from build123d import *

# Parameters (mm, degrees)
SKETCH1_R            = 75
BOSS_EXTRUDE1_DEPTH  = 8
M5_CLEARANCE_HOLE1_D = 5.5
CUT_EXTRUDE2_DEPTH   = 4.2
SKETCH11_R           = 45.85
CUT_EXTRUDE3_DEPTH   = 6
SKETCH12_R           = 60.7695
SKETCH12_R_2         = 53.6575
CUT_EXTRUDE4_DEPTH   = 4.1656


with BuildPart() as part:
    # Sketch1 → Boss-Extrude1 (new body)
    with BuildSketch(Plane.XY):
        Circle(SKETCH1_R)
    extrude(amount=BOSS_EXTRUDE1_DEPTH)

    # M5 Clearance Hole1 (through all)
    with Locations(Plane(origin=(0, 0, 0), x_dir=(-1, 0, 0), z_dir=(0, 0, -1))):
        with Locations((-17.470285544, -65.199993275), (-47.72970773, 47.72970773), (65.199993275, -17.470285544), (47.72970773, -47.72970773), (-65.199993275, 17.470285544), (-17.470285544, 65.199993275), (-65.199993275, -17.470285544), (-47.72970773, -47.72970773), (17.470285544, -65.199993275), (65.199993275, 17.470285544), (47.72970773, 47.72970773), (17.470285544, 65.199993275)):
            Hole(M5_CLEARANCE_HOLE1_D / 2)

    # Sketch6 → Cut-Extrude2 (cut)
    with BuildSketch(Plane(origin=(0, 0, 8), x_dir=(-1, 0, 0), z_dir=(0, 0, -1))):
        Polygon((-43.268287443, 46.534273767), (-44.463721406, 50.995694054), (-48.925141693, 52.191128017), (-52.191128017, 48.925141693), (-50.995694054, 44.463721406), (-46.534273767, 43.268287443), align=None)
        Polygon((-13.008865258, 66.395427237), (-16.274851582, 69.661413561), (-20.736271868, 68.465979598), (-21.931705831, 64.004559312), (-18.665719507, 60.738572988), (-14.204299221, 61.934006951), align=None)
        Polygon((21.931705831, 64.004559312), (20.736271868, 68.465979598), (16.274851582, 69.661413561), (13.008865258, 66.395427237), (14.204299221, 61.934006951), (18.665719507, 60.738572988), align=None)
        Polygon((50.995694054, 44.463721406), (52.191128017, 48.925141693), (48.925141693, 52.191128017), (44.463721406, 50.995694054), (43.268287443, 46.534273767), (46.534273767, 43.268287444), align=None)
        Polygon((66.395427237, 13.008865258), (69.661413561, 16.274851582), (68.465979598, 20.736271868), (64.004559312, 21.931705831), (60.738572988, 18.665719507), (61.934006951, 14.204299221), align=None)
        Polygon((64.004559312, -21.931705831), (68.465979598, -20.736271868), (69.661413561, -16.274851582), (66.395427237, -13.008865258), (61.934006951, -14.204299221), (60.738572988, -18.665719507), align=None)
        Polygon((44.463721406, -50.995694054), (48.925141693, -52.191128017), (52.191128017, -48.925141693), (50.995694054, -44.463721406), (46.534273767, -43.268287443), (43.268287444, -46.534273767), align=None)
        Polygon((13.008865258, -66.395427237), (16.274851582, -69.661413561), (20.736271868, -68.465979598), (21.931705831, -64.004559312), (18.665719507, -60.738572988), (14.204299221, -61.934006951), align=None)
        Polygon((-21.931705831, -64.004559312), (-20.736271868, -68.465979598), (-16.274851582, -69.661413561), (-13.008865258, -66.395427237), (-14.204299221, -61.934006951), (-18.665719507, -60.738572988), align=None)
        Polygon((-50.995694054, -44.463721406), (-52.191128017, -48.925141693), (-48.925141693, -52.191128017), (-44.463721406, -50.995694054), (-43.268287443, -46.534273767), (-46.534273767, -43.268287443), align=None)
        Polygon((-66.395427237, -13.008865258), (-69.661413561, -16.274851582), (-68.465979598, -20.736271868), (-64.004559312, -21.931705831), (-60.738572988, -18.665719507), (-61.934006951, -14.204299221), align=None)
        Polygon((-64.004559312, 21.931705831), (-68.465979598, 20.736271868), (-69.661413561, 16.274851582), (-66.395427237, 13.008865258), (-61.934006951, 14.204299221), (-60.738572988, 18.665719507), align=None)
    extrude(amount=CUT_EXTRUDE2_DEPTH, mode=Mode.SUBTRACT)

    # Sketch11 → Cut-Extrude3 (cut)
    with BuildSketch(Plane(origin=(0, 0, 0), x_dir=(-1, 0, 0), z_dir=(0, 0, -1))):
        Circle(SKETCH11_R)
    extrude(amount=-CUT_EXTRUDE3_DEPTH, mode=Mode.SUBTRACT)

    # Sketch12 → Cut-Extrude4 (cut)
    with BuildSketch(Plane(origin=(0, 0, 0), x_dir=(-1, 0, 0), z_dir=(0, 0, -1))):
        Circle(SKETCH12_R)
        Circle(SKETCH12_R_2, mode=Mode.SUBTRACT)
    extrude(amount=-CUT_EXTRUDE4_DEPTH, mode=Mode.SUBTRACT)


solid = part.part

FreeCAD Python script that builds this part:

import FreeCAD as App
import Part
import Sketcher

V = App.Vector
Q = App.Units.Quantity


def add_polygon(sketch, points):
    """Adds a closed chain of lines whose ends are joined by coincident constraints."""
    first, n = sketch.GeometryCount, len(points)
    for a, b in zip(points, points[1:] + points[:1]):
        sketch.addGeometry(Part.LineSegment(App.Vector(*a, 0), App.Vector(*b, 0)), False)
    for i in range(n):
        sketch.addConstraint(Sketcher.Constraint("Coincident", first + i, 2, first + (i + 1) % n, 1))

doc = App.newDocument("Part")
body = doc.addObject("PartDesign::Body", "Body")

sketch1 = body.newObject("Sketcher::SketchObject", "Sketch")
sketch1.AttachmentSupport = (doc.getObject("XY_Plane"), [""])
sketch1.MapMode = "FlatFace"
sketch1.addGeometry(Part.Circle(V(0, 0, 0), V(0, 0, 1), 75), False)
sketch1.addConstraint([
    Sketcher.Constraint("Coincident", 0, 3, -1, 1),
    Sketcher.Constraint("Diameter", 0, 150.0),
])
pad1 = body.newObject("PartDesign::Pad", "Pad")
pad1.Profile = sketch1
pad1.Length = 8

sketch2 = body.newObject("Sketcher::SketchObject", "Sketch001")
sketch2.AttachmentSupport = (doc.getObject("XY_Plane"), [""])
sketch2.MapMode = "FlatFace"
sketch2.addGeometry([
    Part.Circle(V(17.5, -65.2, 0), V(0, 0, 1), 2.8),
    Part.Circle(V(47.7, 47.7, 0), V(0, 0, 1), 2.8),
    Part.Circle(V(-65.2, -17.5, 0), V(0, 0, 1), 2.8),
    Part.Circle(V(-47.7, -47.7, 0), V(0, 0, 1), 2.8),
    Part.Circle(V(65.2, 17.5, 0), V(0, 0, 1), 2.8),
    Part.Circle(V(17.5, 65.2, 0), V(0, 0, 1), 2.8),
    Part.Circle(V(65.2, -17.5, 0), V(0, 0, 1), 2.8),
    Part.Circle(V(47.7, -47.7, 0), V(0, 0, 1), 2.8),
    Part.Circle(V(-17.5, -65.2, 0), V(0, 0, 1), 2.8),
    Part.Circle(V(-65.2, 17.5, 0), V(0, 0, 1), 2.8),
    Part.Circle(V(-47.7, 47.7, 0), V(0, 0, 1), 2.8),
    Part.Circle(V(-17.5, 65.2, 0), V(0, 0, 1), 2.8),
], False)
sketch2.addConstraint([
    Sketcher.Constraint("Equal", 0, 1),
    Sketcher.Constraint("Equal", 1, 2),
    Sketcher.Constraint("Equal", 2, 3),
    Sketcher.Constraint("Equal", 3, 4),
    Sketcher.Constraint("Equal", 4, 5),
    Sketcher.Constraint("Equal", 5, 6),
    Sketcher.Constraint("Equal", 6, 7),
    Sketcher.Constraint("Equal", 7, 8),
    Sketcher.Constraint("Equal", 8, 9),
    Sketcher.Constraint("Equal", 9, 10),
    Sketcher.Constraint("Equal", 10, 11),
    Sketcher.Constraint("Symmetric", 1, 3, 3, 3, -1, 1),
    Sketcher.Constraint("Symmetric", 2, 3, 4, 3, -1, 1),
    Sketcher.Constraint("Symmetric", 5, 3, 8, 3, -1, 1),
    Sketcher.Constraint("Symmetric", 6, 3, 9, 3, -1, 1),
    Sketcher.Constraint("Symmetric", 7, 3, 10, 3, -1, 1),
    Sketcher.Constraint("Symmetric", 0, 3, 11, 3, -1, 1),
    Sketcher.Constraint("Symmetric", 2, 3, 6, 3, -2),
    Sketcher.Constraint("Symmetric", 3, 3, 7, 3, -2),
    Sketcher.Constraint("Symmetric", 0, 3, 8, 3, -2),
    Sketcher.Constraint("Diameter", 0, 5.5),
    Sketcher.Constraint("DistanceY", 0, 3, 1, 3, 112.929701),
    Sketcher.Constraint("DistanceX", 2, 3, 1, 3, 112.929701),
    Sketcher.Constraint("DistanceX", 2, 3, 0, 3, 82.670279),
    Sketcher.Constraint("DistanceY", 0, 3, 4, 3, 82.670279),
    Sketcher.Constraint("DistanceY", 2, 3, 4, 3, 34.940571),
    Sketcher.Constraint("DistanceX", 8, 3, 0, 3, 34.940571),
])
doc.recompute()
hole = body.newObject("PartDesign::Hole", "Hole")
hole.Profile = sketch2
hole.ThreadType = "None"
hole.Diameter = 5.5
hole.DepthType = "ThroughAll"
hole.Reversed = True

sketch3 = body.newObject("Sketcher::SketchObject", "Sketch002")
sketch3.AttachmentSupport = (doc.getObject("XY_Plane"), [""])
sketch3.MapMode = "FlatFace"
sketch3.AttachmentOffset = App.Placement(V(0, 0, 8), App.Rotation())
add_polygon(sketch3, [(43.3, 46.5), (44.5, 51), (48.9, 52.2), (52.2, 48.9), (51, 44.5), (46.5, 43.3)])
add_polygon(sketch3, [(13, 66.4), (16.3, 69.7), (20.7, 68.5), (21.9, 64), (18.7, 60.7), (14.2, 61.9)])
add_polygon(sketch3, [(-21.9, 64), (-20.7, 68.5), (-16.3, 69.7), (-13, 66.4), (-14.2, 61.9), (-18.7, 60.7)])
add_polygon(sketch3, [(-51, 44.5), (-52.2, 48.9), (-48.9, 52.2), (-44.5, 51), (-43.3, 46.5), (-46.5, 43.3)])
add_polygon(sketch3, [(-66.4, 13), (-69.7, 16.3), (-68.5, 20.7), (-64, 21.9), (-60.7, 18.7), (-61.9, 14.2)])
add_polygon(sketch3, [(-64, -21.9), (-68.5, -20.7), (-69.7, -16.3), (-66.4, -13), (-61.9, -14.2), (-60.7, -18.7)])
add_polygon(sketch3, [(-44.5, -51), (-48.9, -52.2), (-52.2, -48.9), (-51, -44.5), (-46.5, -43.3), (-43.3, -46.5)])
add_polygon(sketch3, [(-13, -66.4), (-16.3, -69.7), (-20.7, -68.5), (-21.9, -64), (-18.7, -60.7), (-14.2, -61.9)])
add_polygon(sketch3, [(21.9, -64), (20.7, -68.5), (16.3, -69.7), (13, -66.4), (14.2, -61.9), (18.7, -60.7)])
add_polygon(sketch3, [(51, -44.5), (52.2, -48.9), (48.9, -52.2), (44.5, -51), (43.3, -46.5), (46.5, -43.3)])
add_polygon(sketch3, [(66.4, -13), (69.7, -16.3), (68.5, -20.7), (64, -21.9), (60.7, -18.7), (61.9, -14.2)])
add_polygon(sketch3, [(64, 21.9), (68.5, 20.7), (69.7, 16.3), (66.4, 13), (61.9, 14.2), (60.7, 18.7)])
sketch3.addConstraint([
    Sketcher.Constraint("Symmetric", 1, 2, 36, 2, -1, 1),
    Sketcher.Constraint("Symmetric", 2, 2, 37, 2, -1, 1),
    Sketcher.Constraint("Symmetric", 3, 2, 38, 2, -1, 1),
    Sketcher.Constraint("Symmetric", 4, 2, 39, 2, -1, 1),
    Sketcher.Constraint("Symmetric", 5, 2, 40, 2, -1, 1),
    Sketcher.Constraint("Symmetric", 0, 2, 41, 2, -1, 1),
    Sketcher.Constraint("Symmetric", 6, 2, 42, 2, -1, 1),
    Sketcher.Constraint("Symmetric", 7, 2, 43, 2, -1, 1),
    Sketcher.Constraint("Symmetric", 8, 2, 44, 2, -1, 1),
    Sketcher.Constraint("Symmetric", 9, 2, 45, 2, -1, 1),
    Sketcher.Constraint("Symmetric", 10, 2, 46, 2, -1, 1),
    Sketcher.Constraint("Symmetric", 11, 2, 47, 2, -1, 1),
    Sketcher.Constraint("Symmetric", 12, 2, 48, 2, -1, 1),
    Sketcher.Constraint("Symmetric", 13, 2, 49, 2, -1, 1),
    Sketcher.Constraint("Symmetric", 14, 2, 50, 2, -1, 1),
    Sketcher.Constraint("Symmetric", 15, 2, 51, 2, -1, 1),
    Sketcher.Constraint("Symmetric", 16, 2, 52, 2, -1, 1),
    Sketcher.Constraint("Symmetric", 17, 2, 53, 2, -1, 1),
    Sketcher.Constraint("Symmetric", 18, 2, 54, 2, -1, 1),
    Sketcher.Constraint("Symmetric", 19, 2, 55, 2, -1, 1),
    Sketcher.Constraint("Symmetric", 20, 2, 56, 2, -1, 1),
    Sketcher.Constraint("Symmetric", 21, 2, 57, 2, -1, 1),
    Sketcher.Constraint("Symmetric", 22, 2, 58, 2, -1, 1),
    Sketcher.Constraint("Symmetric", 23, 2, 59, 2, -1, 1),
    Sketcher.Constraint("Symmetric", 24, 2, 60, 2, -1, 1),
    Sketcher.Constraint("Symmetric", 25, 2, 61, 2, -1, 1),
    Sketcher.Constraint("Symmetric", 26, 2, 62, 2, -1, 1),
    Sketcher.Constraint("Symmetric", 27, 2, 63, 2, -1, 1),
    Sketcher.Constraint("Symmetric", 28, 2, 64, 2, -1, 1),
    Sketcher.Constraint("Symmetric", 29, 2, 65, 2, -1, 1),
    Sketcher.Constraint("Symmetric", 30, 2, 66, 2, -1, 1),
    Sketcher.Constraint("Symmetric", 31, 2, 67, 2, -1, 1),
    Sketcher.Constraint("Symmetric", 32, 2, 68, 2, -1, 1),
    Sketcher.Constraint("Symmetric", 33, 2, 69, 2, -1, 1),
    Sketcher.Constraint("Symmetric", 34, 2, 70, 2, -1, 1),
    Sketcher.Constraint("Symmetric", 35, 2, 71, 2, -1, 1),
    Sketcher.Constraint("Symmetric", 7, 2, 12, 2, -2),
    Sketcher.Constraint("Symmetric", 6, 2, 13, 2, -2),
    Sketcher.Constraint("Symmetric", 11, 2, 14, 2, -2),
    Sketcher.Constraint("Symmetric", 10, 2, 15, 2, -2),
    Sketcher.Constraint("Symmetric", 9, 2, 16, 2, -2),
    Sketcher.Constraint("Symmetric", 8, 2, 17, 2, -2),
    Sketcher.Constraint("Symmetric", 2, 2, 18, 2, -2),
    Sketcher.Constraint("Symmetric", 1, 2, 19, 2, -2),
    Sketcher.Constraint("Symmetric", 0, 2, 20, 2, -2),
    Sketcher.Constraint("Symmetric", 5, 2, 21, 2, -2),
    Sketcher.Constraint("Symmetric", 4, 2, 22, 2, -2),
    Sketcher.Constraint("Symmetric", 3, 2, 23, 2, -2),
    Sketcher.Constraint("Symmetric", 31, 2, 60, 2, -2),
    Sketcher.Constraint("Symmetric", 30, 2, 61, 2, -2),
    Sketcher.Constraint("Symmetric", 35, 2, 62, 2, -2),
    Sketcher.Constraint("Symmetric", 34, 2, 63, 2, -2),
    Sketcher.Constraint("Symmetric", 33, 2, 64, 2, -2),
    Sketcher.Constraint("Symmetric", 32, 2, 65, 2, -2),
    Sketcher.Constraint("Parallel", 0, 3),
    Sketcher.Constraint("Parallel", 1, 4),
    Sketcher.Constraint("Parallel", 2, 5),
    Sketcher.Constraint("Perpendicular", 5, 6),
    Sketcher.Constraint("Perpendicular", 3, 7),
    Sketcher.Constraint("Perpendicular", 4, 8),
    Sketcher.Constraint("Parallel", 6, 9),
    Sketcher.Constraint("Parallel", 7, 10),
    Sketcher.Constraint("Parallel", 8, 11),
    Sketcher.Constraint("Perpendicular", 10, 12),
    Sketcher.Constraint("Perpendicular", 9, 14),
    Sketcher.Constraint("Perpendicular", 22, 24),
    Sketcher.Constraint("Perpendicular", 23, 25),
    Sketcher.Constraint("Perpendicular", 21, 26),
    Sketcher.Constraint("Parallel", 24, 27),
    Sketcher.Constraint("Parallel", 25, 28),
    Sketcher.Constraint("Parallel", 26, 29),
    Sketcher.Constraint("Equal", 0, 1),
    Sketcher.Constraint("Equal", 1, 2),
    Sketcher.Constraint("Equal", 2, 3),
    Sketcher.Constraint("Equal", 5, 6),
    Sketcher.Constraint("Equal", 6, 7),
    Sketcher.Constraint("Equal", 7, 8),
    Sketcher.Constraint("Equal", 8, 9),
    Sketcher.Constraint("Equal", 23, 24),
    Sketcher.Constraint("Equal", 24, 25),
    Sketcher.Constraint("Equal", 25, 26),
    Sketcher.Constraint("Equal", 26, 27),
    Sketcher.Constraint("Angle", 0, Q("75 deg")),
    Sketcher.Constraint("DistanceX", -1, 1, 10, 2, 14.204299),
    Sketcher.Constraint("DistanceY", -1, 1, 28, 2, 14.204299),
    Sketcher.Constraint("DistanceX", -1, 1, 0, 2, 44.463721),
    Sketcher.Constraint("DistanceX", -1, 1, 1, 2, 48.925142),
    Sketcher.Constraint("DistanceY", -1, 1, 1, 2, 52.191128),
    Sketcher.Constraint("DistanceY", -1, 1, 7, 2, 68.46598),
    Sketcher.Constraint("DistanceX", 25, 2, -1, 1, 68.46598),
])
pocket1 = body.newObject("PartDesign::Pocket", "Pocket")
pocket1.Profile = sketch3
pocket1.Length = 4.2

sketch4 = body.newObject("Sketcher::SketchObject", "Sketch003")
sketch4.AttachmentSupport = (doc.getObject("XY_Plane"), [""])
sketch4.MapMode = "FlatFace"
sketch4.addGeometry(Part.Circle(V(0, 0, 0), V(0, 0, 1), 46), False)
sketch4.addConstraint([
    Sketcher.Constraint("Coincident", 0, 3, -1, 1),
    Sketcher.Constraint("Diameter", 0, 91.7),
])
pocket2 = body.newObject("PartDesign::Pocket", "Pocket001")
pocket2.Profile = sketch4
pocket2.Length = 6
pocket2.Reversed = True

sketch5 = body.newObject("Sketcher::SketchObject", "Sketch004")
sketch5.AttachmentSupport = (doc.getObject("XY_Plane"), [""])
sketch5.MapMode = "FlatFace"
sketch5.addGeometry([
    Part.Circle(V(0, 0, 0), V(0, 0, 1), 61),
    Part.Circle(V(0, 0, 0), V(0, 0, 1), 54),
], False)
sketch5.addConstraint([
    Sketcher.Constraint("Coincident", 0, 3, -1, 1),
    Sketcher.Constraint("Coincident", 1, 3, -1, 1),
    Sketcher.Constraint("Diameter", 0, 121.539),
    Sketcher.Constraint("Diameter", 1, 107.315),
])
pocket3 = body.newObject("PartDesign::Pocket", "Pocket002")
pocket3.Profile = sketch5
pocket3.Length = 4.1656
pocket3.Reversed = True

doc.recompute()
